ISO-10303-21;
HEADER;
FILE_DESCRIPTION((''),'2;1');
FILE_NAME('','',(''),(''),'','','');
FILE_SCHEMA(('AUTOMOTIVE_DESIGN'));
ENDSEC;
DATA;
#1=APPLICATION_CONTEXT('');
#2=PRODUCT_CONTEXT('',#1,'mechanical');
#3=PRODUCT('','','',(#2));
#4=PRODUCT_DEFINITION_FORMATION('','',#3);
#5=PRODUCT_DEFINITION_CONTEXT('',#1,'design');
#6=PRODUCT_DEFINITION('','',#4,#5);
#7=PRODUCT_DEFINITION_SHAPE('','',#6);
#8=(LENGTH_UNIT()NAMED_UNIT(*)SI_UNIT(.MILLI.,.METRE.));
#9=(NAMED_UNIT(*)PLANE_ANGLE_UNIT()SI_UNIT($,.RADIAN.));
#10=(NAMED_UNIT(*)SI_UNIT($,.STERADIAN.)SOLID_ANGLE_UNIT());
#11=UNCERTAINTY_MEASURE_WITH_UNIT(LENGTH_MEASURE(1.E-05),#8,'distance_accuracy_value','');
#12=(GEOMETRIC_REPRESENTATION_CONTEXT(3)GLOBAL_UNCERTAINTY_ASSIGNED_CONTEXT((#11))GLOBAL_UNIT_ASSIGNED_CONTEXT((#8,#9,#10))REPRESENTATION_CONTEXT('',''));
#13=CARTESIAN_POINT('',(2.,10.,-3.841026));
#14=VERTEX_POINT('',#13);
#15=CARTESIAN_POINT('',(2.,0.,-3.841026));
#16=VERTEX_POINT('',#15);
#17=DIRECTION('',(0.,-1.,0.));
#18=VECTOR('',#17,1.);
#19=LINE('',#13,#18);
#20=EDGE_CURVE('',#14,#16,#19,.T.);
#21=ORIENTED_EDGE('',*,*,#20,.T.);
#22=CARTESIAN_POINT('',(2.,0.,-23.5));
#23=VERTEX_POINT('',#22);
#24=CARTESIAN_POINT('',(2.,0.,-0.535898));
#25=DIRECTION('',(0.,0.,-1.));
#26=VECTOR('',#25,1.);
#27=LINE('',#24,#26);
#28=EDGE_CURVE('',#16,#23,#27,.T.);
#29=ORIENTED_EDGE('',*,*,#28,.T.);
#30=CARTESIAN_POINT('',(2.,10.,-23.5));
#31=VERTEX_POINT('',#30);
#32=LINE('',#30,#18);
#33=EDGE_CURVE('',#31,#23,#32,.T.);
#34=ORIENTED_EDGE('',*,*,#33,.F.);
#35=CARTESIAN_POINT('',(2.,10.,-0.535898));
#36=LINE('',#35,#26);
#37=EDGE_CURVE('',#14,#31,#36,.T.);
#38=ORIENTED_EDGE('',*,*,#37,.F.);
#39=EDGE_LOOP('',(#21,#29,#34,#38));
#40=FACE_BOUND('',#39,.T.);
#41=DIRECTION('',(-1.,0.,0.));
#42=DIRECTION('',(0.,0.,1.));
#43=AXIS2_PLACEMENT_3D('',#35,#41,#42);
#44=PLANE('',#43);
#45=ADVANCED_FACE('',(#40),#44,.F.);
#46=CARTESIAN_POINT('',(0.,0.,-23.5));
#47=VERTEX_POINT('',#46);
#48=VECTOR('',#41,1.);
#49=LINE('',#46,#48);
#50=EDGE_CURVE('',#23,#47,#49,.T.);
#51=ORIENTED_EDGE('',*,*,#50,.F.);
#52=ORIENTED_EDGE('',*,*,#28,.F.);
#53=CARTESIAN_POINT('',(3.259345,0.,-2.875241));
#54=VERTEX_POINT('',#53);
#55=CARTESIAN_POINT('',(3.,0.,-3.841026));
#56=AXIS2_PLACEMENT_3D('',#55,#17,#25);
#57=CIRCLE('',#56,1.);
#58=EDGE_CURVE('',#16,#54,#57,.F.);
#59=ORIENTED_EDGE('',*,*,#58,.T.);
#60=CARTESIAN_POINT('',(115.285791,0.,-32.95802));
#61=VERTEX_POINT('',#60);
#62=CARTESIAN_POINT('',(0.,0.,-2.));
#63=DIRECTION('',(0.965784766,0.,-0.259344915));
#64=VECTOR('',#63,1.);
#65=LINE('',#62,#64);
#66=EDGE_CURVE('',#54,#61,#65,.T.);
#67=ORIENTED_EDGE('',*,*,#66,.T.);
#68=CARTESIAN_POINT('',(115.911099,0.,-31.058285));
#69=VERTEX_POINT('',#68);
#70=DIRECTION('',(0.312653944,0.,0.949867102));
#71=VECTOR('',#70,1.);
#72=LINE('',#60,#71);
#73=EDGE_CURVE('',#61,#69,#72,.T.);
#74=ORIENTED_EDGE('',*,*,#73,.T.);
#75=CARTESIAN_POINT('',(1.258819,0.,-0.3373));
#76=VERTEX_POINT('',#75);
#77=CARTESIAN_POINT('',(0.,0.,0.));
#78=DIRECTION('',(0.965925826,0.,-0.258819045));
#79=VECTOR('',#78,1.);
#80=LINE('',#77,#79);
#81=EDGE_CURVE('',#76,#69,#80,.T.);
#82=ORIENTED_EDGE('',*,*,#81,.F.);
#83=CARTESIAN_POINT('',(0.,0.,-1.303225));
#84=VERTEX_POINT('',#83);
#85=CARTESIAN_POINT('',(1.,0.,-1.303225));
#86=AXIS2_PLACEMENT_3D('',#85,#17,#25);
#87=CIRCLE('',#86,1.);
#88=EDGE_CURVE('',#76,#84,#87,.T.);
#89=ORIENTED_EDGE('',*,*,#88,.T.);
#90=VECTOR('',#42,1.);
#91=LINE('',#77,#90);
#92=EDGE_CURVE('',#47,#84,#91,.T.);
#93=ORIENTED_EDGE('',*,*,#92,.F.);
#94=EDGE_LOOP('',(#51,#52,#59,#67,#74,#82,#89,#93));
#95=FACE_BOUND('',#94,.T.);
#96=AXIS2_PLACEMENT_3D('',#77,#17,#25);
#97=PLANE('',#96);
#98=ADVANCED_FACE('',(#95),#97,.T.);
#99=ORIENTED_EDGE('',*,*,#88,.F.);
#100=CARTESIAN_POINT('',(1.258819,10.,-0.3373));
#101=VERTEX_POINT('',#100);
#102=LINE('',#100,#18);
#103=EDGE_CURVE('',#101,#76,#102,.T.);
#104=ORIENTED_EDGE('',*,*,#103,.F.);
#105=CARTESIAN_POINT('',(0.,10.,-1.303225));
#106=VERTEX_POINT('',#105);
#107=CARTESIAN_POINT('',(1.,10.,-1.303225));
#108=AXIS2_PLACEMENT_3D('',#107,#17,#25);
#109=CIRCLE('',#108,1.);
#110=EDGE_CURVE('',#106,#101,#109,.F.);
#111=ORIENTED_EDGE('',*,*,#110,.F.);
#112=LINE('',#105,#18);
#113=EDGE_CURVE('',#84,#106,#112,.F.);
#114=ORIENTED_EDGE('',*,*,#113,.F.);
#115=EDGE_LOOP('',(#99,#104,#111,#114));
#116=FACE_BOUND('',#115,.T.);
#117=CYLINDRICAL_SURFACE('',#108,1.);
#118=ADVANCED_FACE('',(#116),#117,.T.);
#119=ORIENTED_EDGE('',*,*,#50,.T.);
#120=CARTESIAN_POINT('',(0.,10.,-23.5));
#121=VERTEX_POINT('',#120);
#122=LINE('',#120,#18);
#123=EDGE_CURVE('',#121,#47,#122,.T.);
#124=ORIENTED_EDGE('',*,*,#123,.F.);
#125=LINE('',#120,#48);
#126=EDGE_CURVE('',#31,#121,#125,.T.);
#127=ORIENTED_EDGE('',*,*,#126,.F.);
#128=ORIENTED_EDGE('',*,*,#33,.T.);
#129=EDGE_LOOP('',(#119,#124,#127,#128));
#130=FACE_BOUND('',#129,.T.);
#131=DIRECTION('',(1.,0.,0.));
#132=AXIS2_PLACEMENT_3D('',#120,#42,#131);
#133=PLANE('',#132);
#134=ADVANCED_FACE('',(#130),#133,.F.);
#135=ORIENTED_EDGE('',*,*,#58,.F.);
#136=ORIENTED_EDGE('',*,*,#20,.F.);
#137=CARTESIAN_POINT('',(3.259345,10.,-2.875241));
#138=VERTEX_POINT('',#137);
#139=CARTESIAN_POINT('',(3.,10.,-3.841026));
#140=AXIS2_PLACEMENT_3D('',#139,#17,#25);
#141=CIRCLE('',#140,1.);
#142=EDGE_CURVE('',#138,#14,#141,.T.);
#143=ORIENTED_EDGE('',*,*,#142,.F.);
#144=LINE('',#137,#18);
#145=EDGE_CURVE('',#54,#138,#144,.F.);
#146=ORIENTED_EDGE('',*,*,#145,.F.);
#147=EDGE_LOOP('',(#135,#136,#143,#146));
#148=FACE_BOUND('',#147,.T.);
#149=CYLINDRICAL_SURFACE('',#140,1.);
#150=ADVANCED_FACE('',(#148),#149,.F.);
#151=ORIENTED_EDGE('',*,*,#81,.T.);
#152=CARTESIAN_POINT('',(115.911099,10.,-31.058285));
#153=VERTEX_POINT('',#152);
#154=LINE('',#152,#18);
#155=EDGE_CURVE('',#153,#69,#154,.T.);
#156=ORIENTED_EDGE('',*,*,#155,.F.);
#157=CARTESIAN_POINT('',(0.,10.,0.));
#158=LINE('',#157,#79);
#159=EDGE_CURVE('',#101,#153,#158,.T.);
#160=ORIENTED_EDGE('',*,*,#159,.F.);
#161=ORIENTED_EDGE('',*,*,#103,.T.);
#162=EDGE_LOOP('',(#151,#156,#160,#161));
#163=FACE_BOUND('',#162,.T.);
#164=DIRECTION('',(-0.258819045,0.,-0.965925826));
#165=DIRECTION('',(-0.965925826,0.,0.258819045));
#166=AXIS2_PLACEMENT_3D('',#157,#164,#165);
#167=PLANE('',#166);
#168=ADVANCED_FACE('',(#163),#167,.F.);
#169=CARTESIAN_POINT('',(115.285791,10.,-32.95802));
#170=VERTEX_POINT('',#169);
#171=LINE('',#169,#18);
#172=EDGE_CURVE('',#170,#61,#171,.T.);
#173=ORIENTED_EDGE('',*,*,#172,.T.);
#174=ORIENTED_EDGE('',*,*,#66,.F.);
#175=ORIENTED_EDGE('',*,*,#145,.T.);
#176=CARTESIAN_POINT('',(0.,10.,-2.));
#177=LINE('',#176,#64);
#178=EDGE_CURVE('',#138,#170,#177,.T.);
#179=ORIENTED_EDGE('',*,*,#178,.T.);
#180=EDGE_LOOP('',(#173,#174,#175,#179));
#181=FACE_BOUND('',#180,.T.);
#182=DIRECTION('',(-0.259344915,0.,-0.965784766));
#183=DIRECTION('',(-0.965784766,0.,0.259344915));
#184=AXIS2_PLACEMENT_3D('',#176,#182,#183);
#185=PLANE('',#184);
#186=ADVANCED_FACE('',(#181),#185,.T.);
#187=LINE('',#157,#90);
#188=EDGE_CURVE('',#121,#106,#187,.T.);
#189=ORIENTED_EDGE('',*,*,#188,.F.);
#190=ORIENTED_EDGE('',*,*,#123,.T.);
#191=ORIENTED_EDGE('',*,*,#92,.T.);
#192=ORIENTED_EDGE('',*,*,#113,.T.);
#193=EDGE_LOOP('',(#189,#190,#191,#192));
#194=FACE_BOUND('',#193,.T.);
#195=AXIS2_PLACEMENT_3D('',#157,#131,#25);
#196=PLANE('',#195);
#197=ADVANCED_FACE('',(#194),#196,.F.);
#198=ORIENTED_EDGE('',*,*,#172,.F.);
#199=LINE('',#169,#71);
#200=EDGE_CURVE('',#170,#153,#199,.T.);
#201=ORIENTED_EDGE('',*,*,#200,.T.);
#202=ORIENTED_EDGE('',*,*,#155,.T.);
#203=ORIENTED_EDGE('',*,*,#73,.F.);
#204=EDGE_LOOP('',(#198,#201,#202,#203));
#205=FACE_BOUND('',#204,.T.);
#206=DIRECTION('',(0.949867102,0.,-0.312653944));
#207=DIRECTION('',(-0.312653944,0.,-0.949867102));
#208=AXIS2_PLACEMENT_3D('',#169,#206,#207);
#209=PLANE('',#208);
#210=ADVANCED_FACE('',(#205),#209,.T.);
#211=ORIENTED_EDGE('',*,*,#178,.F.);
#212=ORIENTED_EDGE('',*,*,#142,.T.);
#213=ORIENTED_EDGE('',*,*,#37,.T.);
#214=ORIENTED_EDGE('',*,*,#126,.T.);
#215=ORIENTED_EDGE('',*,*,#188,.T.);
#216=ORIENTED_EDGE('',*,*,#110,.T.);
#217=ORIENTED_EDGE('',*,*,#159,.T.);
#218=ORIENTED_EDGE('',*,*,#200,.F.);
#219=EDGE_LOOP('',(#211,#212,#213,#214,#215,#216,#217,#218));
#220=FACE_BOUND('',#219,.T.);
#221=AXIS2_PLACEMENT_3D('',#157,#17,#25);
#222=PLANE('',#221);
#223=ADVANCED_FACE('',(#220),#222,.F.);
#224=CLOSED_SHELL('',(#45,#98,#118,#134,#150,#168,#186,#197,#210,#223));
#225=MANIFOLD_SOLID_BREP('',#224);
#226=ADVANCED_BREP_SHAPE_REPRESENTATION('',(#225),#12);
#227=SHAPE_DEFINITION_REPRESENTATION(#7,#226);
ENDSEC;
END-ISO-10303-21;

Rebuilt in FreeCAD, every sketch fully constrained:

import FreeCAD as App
import Part
import Sketcher

V = App.Vector
Q = App.Units.Quantity


def edges_at(feature, points):
    """Names of the edges that pass closest to the given points."""
    edges = feature.Shape.Edges
    near = lambda p: min(range(len(edges)), key=lambda i: edges[i].distToShape(Part.Vertex(*p))[0])
    return sorted({f"Edge{near(p) + 1}" for p in points})


def add_polygon(sketch, points):
    """Adds a closed chain of lines whose ends are joined by coincident constraints."""
    first, n = sketch.GeometryCount, len(points)
    for a, b in zip(points, points[1:] + points[:1]):
        sketch.addGeometry(Part.LineSegment(App.Vector(*a, 0), App.Vector(*b, 0)), False)
    for i in range(n):
        sketch.addConstraint(Sketcher.Constraint("Coincident", first + i, 2, first + (i + 1) % n, 1))

doc = App.newDocument("Part")
params = doc.addObject("Spreadsheet::Sheet", "Params")
for row, (alias, value) in enumerate([
    ("sketch1_width", "2 mm"),
    ("sketch1_height", "23.5 mm"),
    ("pad1_length", "10 mm"),
    ("sketch2_height", "2 mm"),
    ("sketch2_length", "120 mm"),
    ("sketch2_length2", "2 mm"),
    ("pad2_length", "10 mm"),
    ("fillet_radius", "1 mm"),
], start=1):
    params.set(f"A{row}", alias)
    params.set(f"B{row}", "=" + value)
    params.setAlias(f"B{row}", alias)

body = doc.addObject("PartDesign::Body", "Body")

sketch1 = body.newObject("Sketcher::SketchObject", "Sketch")
sketch1.AttachmentSupport = (doc.getObject("XZ_Plane"), [""])
sketch1.MapMode = "FlatFace"
add_polygon(sketch1, [(0, 0), (2, -0.535898), (2, -23.5), (0, -23.5)])
sketch1.addConstraint([
    Sketcher.Constraint("Vertical", 1),
    Sketcher.Constraint("Horizontal", 2),
    Sketcher.Constraint("Vertical", 3),
    Sketcher.Constraint("Coincident", 3, 2, -1, 1),
    Sketcher.Constraint("DistanceX", 2, 2, 2, 1, 2.0),
    Sketcher.Constraint("Angle", 0, Q("-15 deg")),
    Sketcher.Constraint("DistanceY", 3, 1, 3, 2, 23.5),
])
sketch1.setExpression("Constraints[8]", "Params.sketch1_width")
sketch1.setExpression("Constraints[10]", "Params.sketch1_height")
pad1 = body.newObject("PartDesign::Pad", "Pad")
pad1.Profile = sketch1
pad1.setExpression("Length", "Params.pad1_length")
pad1.Reversed = True

sketch2 = body.newObject("Sketcher::SketchObject", "Sketch001")
sketch2.AttachmentSupport = (doc.getObject("XZ_Plane"), [""])
sketch2.MapMode = "FlatFace"
add_polygon(sketch2, [(115.911099, -31.058285), (0, 0), (0, -2), (115.285791, -32.95802)])
sketch2.addConstraint([
    Sketcher.Constraint("Vertical", 1),
    Sketcher.Constraint("Coincident", 0, 2, -1, 1),
    Sketcher.Constraint("DistanceY", 1, 2, 1, 1, 2.0),
    Sketcher.Constraint("Angle", 0, Q("165 deg")),
    Sketcher.Constraint("Distance", 0, 120.0),
    Sketcher.Constraint("Distance", 3, 2.0),
    Sketcher.Constraint("DistanceX", -1, 1, 2, 2, 115.285791),
])
sketch2.setExpression("Constraints[6]", "Params.sketch2_height")
sketch2.setExpression("Constraints[8]", "Params.sketch2_length")
sketch2.setExpression("Constraints[9]", "Params.sketch2_length2")
pad2 = body.newObject("PartDesign::Pad", "Pad001")
pad2.Profile = sketch2
pad2.setExpression("Length", "Params.pad2_length")
pad2.Reversed = True
doc.recompute()

fillet = body.newObject("PartDesign::Fillet", "Fillet")
fillet.Base = (pad2, edges_at(pad2, [(2, 5, -2.537), (0, 5, 0)]))
fillet.setExpression("Radius", "Params.fillet_radius")

doc.recompute()
